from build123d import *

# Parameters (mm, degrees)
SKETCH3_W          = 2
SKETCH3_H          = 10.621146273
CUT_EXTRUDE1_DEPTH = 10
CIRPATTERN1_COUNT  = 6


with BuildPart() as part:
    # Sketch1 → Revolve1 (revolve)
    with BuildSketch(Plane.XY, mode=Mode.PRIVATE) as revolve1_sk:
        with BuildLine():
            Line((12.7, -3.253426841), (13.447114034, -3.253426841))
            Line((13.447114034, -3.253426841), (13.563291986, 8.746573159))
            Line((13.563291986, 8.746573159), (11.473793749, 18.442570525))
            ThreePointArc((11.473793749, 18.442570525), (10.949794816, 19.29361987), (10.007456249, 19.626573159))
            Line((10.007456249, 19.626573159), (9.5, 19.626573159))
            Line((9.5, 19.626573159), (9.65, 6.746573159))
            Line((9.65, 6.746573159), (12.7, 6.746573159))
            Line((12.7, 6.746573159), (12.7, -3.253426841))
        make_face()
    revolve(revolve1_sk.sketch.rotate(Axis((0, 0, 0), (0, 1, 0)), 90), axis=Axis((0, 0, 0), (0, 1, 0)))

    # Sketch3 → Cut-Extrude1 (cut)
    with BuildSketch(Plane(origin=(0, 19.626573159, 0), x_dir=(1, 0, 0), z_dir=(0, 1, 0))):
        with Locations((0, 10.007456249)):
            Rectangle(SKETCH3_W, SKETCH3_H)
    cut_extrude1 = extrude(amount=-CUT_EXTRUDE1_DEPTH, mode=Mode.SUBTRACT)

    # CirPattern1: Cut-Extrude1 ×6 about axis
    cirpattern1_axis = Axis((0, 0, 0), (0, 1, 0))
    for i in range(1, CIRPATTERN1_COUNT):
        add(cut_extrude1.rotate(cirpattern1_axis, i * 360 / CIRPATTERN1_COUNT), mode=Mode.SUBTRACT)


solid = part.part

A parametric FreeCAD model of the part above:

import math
import FreeCAD as App
import Part
import Sketcher
from FreeCAD import Vector

doc = App.newDocument("Part")
params = doc.addObject("Spreadsheet::Sheet", "Params")
for row, (alias, value) in enumerate([
    ("sketch1_radius", "1.5 mm"),
    ("sketch1_height", "10 mm"),
    ("sketch1_width", "3.05 mm"),
    ("revolution_angle", "360 deg"),
    ("sketch2_width", "2 mm"),
    ("pocket1_length", "10 mm"),
], start=1):
    params.set(f"A{row}", alias)
    params.set(f"B{row}", "=" + value)
    params.setAlias(f"B{row}", alias)

body = doc.addObject("PartDesign::Body", "Body")

# Sketch on XY plane
sketch1 = body.newObject("Sketcher::SketchObject", "Sketch")
sketch1.AttachmentSupport = (doc.getObject("XY_Plane"), [""])
sketch1.MapMode = "FlatFace"
sketch1.addGeometry([
    Part.LineSegment(Vector(12.7, -3.3, 0), Vector(13.4, -3.3, 0)),  # 0
    Part.LineSegment(Vector(13.4, -3.3, 0), Vector(13.6, 8.7, 0)),  # 1
    Part.LineSegment(Vector(13.6, 8.7, 0), Vector(11.5, 18.4, 0)),  # 2
    Part.ArcOfCircle(Part.Circle(Vector(10, 18.1, 0), Vector(0, 0, 1), 1.5), math.radians(12), math.radians(90)),  # 3
    Part.LineSegment(Vector(10, 19.6, 0), Vector(9.5, 19.6, 0)),  # 4
    Part.LineSegment(Vector(9.5, 19.6, 0), Vector(9.7, 6.7, 0)),  # 5
    Part.LineSegment(Vector(9.7, 6.7, 0), Vector(12.7, 6.7, 0)),  # 6
    Part.LineSegment(Vector(12.7, 6.7, 0), Vector(12.7, -3.3, 0)),  # 7
], False)
sketch1.addConstraint([
    Sketcher.Constraint("Coincident", 0, 2, 1, 1),
    Sketcher.Constraint("Coincident", 1, 2, 2, 1),
    Sketcher.Constraint("Tangent", 2, 2, 3, 1),
    Sketcher.Constraint("Tangent", 3, 2, 4, 1),
    Sketcher.Constraint("Coincident", 4, 2, 5, 1),
    Sketcher.Constraint("Coincident", 5, 2, 6, 1),
    Sketcher.Constraint("Coincident", 6, 2, 7, 1),
    Sketcher.Constraint("Coincident", 7, 2, 0, 1),
    Sketcher.Constraint("Horizontal", 0),
    Sketcher.Constraint("Horizontal", 4),
    Sketcher.Constraint("Horizontal", 6),
    Sketcher.Constraint("Vertical", 7),
    Sketcher.Constraint("Radius", 3, 1.5),
    Sketcher.Constraint("DistanceY", 7, 2, 7, 1, 10.0),
    Sketcher.Constraint("DistanceY", 0, 2, 1, 2, 12.0),
    Sketcher.Constraint("DistanceX", 6, 1, 6, 2, 3.05),
    Sketcher.Constraint("DistanceX", -1, 1, 4, 2, 9.5),
    Sketcher.Constraint("DistanceX", -1, 1, 6, 2, 12.7),
    Sketcher.Constraint("DistanceY", 0, 2, 3, 3, 21.38),
    Sketcher.Constraint("DistanceX", 2, 2, 1, 2, 2.089498),
    Sketcher.Constraint("DistanceX", 0, 1, 0, 2, 0.747114),
    Sketcher.Constraint("DistanceX", 4, 2, 4, 1, 0.507456),
    Sketcher.Constraint("DistanceY", -1, 1, 2, 2, 18.442571),
])
sketch1.setExpression("Constraints[12]", "Params.sketch1_radius")
sketch1.setExpression("Constraints[13]", "Params.sketch1_height")
sketch1.setExpression("Constraints[15]", "Params.sketch1_width")
revolution = body.newObject("PartDesign::Revolution", "Revolution")
revolution.Profile = sketch1
revolution.ReferenceAxis = (sketch1, ["V_Axis"])
revolution.setExpression("Angle", "Params.revolution_angle")

# Sketch on XZ plane
sketch2 = body.newObject("Sketcher::SketchObject", "Sketch001")
sketch2.AttachmentSupport = (doc.getObject("XZ_Plane"), [""])
sketch2.MapMode = "FlatFace"
sketch2.AttachmentOffset = App.Placement(Vector(0, 0, -19.626573), App.Rotation())
sketch2.addGeometry([
    Part.LineSegment(Vector(-1, -15.3, 0), Vector(-1, -4.7, 0)),
    Part.LineSegment(Vector(-1, -4.7, 0), Vector(1, -4.7, 0)),
    Part.LineSegment(Vector(1, -4.7, 0), Vector(1, -15.3, 0)),
    Part.LineSegment(Vector(1, -15.3, 0), Vector(-1, -15.3, 0)),
], False)
sketch2.addConstraint([
    Sketcher.Constraint("Coincident", 0, 2, 1, 1),
    Sketcher.Constraint("Coincident", 1, 2, 2, 1),
    Sketcher.Constraint("Coincident", 2, 2, 3, 1),
    Sketcher.Constraint("Coincident", 3, 2, 0, 1),
    Sketcher.Constraint("Vertical", 0),
    Sketcher.Constraint("Horizontal", 1),
    Sketcher.Constraint("Vertical", 2),
    Sketcher.Constraint("Horizontal", 3),
    Sketcher.Constraint("DistanceX", 1, 1, 1, 2, 2.0),
    Sketcher.Constraint("DistanceX", 0, 2, -1, 1, 1.0),
    Sketcher.Constraint("DistanceY", 0, 1, 0, 2, 10.621146),
    Sketcher.Constraint("DistanceY", 2, 2, -1, 1, 15.318029),
])
sketch2.setExpression("Constraints[8]", "Params.sketch2_width")
pocket1 = body.newObject("PartDesign::Pocket", "Pocket")
pocket1.Profile = sketch2
pocket1.setExpression("Length", "Params.pocket1_length")
pocket1.Reversed = True
doc.recompute()

polarpattern = body.newObject("PartDesign::PolarPattern", "PolarPattern")
polarpattern.Originals = [pocket1]
polarpattern.Axis = (doc.getObject("Y_Axis"), [""])
polarpattern.Angle = 360
polarpattern.Occurrences = 6
body.Tip = polarpattern

doc.recompute()
